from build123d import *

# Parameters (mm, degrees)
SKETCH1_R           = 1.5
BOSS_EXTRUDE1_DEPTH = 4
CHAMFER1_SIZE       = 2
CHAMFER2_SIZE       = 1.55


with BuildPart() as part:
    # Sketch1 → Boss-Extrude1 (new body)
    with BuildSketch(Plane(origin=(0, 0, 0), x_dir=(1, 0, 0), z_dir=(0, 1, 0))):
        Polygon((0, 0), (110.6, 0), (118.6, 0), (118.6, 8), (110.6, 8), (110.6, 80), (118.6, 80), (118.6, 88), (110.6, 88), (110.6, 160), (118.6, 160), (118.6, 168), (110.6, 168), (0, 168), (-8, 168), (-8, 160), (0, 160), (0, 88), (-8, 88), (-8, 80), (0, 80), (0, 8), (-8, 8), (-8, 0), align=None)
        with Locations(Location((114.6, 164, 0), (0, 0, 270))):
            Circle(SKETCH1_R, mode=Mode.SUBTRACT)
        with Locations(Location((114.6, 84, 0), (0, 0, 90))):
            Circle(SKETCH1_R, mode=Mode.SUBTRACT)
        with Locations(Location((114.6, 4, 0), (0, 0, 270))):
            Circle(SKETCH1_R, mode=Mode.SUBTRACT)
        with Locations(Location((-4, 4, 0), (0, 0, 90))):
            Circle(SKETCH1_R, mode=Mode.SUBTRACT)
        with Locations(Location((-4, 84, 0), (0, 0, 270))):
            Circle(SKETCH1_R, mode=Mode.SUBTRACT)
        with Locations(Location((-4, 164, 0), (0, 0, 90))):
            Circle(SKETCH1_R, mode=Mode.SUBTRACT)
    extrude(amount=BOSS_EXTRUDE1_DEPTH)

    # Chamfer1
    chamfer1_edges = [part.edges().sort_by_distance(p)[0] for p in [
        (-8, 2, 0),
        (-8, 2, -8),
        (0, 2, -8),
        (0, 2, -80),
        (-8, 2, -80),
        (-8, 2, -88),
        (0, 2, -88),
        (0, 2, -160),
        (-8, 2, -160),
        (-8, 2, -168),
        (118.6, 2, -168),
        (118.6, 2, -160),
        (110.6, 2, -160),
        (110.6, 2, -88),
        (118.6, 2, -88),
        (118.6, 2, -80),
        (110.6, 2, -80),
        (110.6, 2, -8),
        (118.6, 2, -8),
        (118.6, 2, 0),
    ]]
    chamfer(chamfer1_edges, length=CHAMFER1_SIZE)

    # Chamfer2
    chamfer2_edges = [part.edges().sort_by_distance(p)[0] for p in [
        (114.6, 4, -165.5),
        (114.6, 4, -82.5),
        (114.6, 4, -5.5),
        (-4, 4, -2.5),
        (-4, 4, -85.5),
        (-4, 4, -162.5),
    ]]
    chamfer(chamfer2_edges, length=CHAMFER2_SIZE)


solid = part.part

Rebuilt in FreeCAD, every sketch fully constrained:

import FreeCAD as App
import Part
import Sketcher


def edges_at(feature, points):
    """Names of the edges that pass closest to the given points."""
    edges = feature.Shape.Edges
    near = lambda p: min(range(len(edges)), key=lambda i: edges[i].distToShape(Part.Vertex(*p))[0])
    return sorted({f"Edge{near(p) + 1}" for p in points})

doc = App.newDocument("Part")
params = doc.addObject("Spreadsheet::Sheet", "Params")
for row, (alias, value) in enumerate([
    ("sketch1_diameter", "3 mm"),
    ("sketch1_width", "8 mm"),
    ("sketch1_height", "72 mm"),
    ("sketch1_width2", "126.6 mm"),
    ("pad1_length", "4 mm"),
    ("chamfer_size", "2 mm"),
    ("chamfer2_size", "1.55 mm"),
], start=1):
    params.set(f"A{row}", alias)
    params.set(f"B{row}", "=" + value)
    params.setAlias(f"B{row}", alias)

body = doc.addObject("PartDesign::Body", "Body")

sketch1 = body.newObject("Sketcher::SketchObject", "Sketch")
sketch1.AttachmentSupport = (doc.getObject("XZ_Plane"), [""])
sketch1.MapMode = "FlatFace"
sketch1.addGeometry([
    Part.LineSegment(App.Vector(118.6, 0, 0), App.Vector(118.6, -8, 0)),
    Part.LineSegment(App.Vector(118.6, -8, 0), App.Vector(110.6, -8, 0)),
    Part.LineSegment(App.Vector(110.6, -8, 0), App.Vector(110.6, -80, 0)),
    Part.LineSegment(App.Vector(110.6, -80, 0), App.Vector(118.6, -80, 0)),
    Part.LineSegment(App.Vector(118.6, -80, 0), App.Vector(118.6, -88, 0)),
    Part.LineSegment(App.Vector(118.6, -88, 0), App.Vector(110.6, -88, 0)),
    Part.LineSegment(App.Vector(110.6, -88, 0), App.Vector(110.6, -160, 0)),
    Part.LineSegment(App.Vector(110.6, -160, 0), App.Vector(118.6, -160, 0)),
    Part.LineSegment(App.Vector(118.6, -160, 0), App.Vector(118.6, -168, 0)),
    Part.LineSegment(App.Vector(118.6, -168, 0), App.Vector(-8, -168, 0)),
    Part.LineSegment(App.Vector(-8, -168, 0), App.Vector(-8, -160, 0)),
    Part.LineSegment(App.Vector(-8, -160, 0), App.Vector(0, -160, 0)),
    Part.LineSegment(App.Vector(0, -160, 0), App.Vector(0, -88, 0)),
    Part.LineSegment(App.Vector(0, -88, 0), App.Vector(-8, -88, 0)),
    Part.LineSegment(App.Vector(-8, -88, 0), App.Vector(-8, -80, 0)),
    Part.LineSegment(App.Vector(-8, -80, 0), App.Vector(0, -80, 0)),
    Part.LineSegment(App.Vector(0, -80, 0), App.Vector(0, -8, 0)),
    Part.LineSegment(App.Vector(0, -8, 0), App.Vector(-8, -8, 0)),
    Part.LineSegment(App.Vector(-8, -8, 0), App.Vector(-8, 0, 0)),
    Part.LineSegment(App.Vector(-8, 0, 0), App.Vector(118.6, 0, 0)),
    Part.Circle(App.Vector(-4, -4, 0), App.Vector(0, 0, 1), 1.5),
    Part.Circle(App.Vector(114.6, -4, 0), App.Vector(0, 0, 1), 1.5),
    Part.Circle(App.Vector(-4, -84, 0), App.Vector(0, 0, 1), 1.5),
    Part.Circle(App.Vector(-4, -164, 0), App.Vector(0, 0, 1), 1.5),
    Part.Circle(App.Vector(114.6, -84, 0), App.Vector(0, 0, 1), 1.5),
    Part.Circle(App.Vector(114.6, -164, 0), App.Vector(0, 0, 1), 1.5),
], False)
sketch1.addConstraint([
    Sketcher.Constraint("Coincident", 0, 2, 1, 1),
    Sketcher.Constraint("Coincident", 1, 2, 2, 1),
    Sketcher.Constraint("Coincident", 2, 2, 3, 1),
    Sketcher.Constraint("Coincident", 3, 2, 4, 1),
    Sketcher.Constraint("Coincident", 4, 2, 5, 1),
    Sketcher.Constraint("Coincident", 5, 2, 6, 1),
    Sketcher.Constraint("Coincident", 6, 2, 7, 1),
    Sketcher.Constraint("Coincident", 7, 2, 8, 1),
    Sketcher.Constraint("Coincident", 8, 2, 9, 1),
    Sketcher.Constraint("Coincident", 9, 2, 10, 1),
    Sketcher.Constraint("Coincident", 10, 2, 11, 1),
    Sketcher.Constraint("Coincident", 11, 2, 12, 1),
    Sketcher.Constraint("Coincident", 12, 2, 13, 1),
    Sketcher.Constraint("Coincident", 13, 2, 14, 1),
    Sketcher.Constraint("Coincident", 14, 2, 15, 1),
    Sketcher.Constraint("Coincident", 15, 2, 16, 1),
    Sketcher.Constraint("Coincident", 16, 2, 17, 1),
    Sketcher.Constraint("Coincident", 17, 2, 18, 1),
    Sketcher.Constraint("Coincident", 18, 2, 19, 1),
    Sketcher.Constraint("Coincident", 19, 2, 0, 1),
    Sketcher.Constraint("Vertical", 0),
    Sketcher.Constraint("Horizontal", 1),
    Sketcher.Constraint("Vertical", 2),
    Sketcher.Constraint("Horizontal", 3),
    Sketcher.Constraint("Vertical", 4),
    Sketcher.Constraint("Horizontal", 5),
    Sketcher.Constraint("Vertical", 6),
    Sketcher.Constraint("Horizontal", 7),
    Sketcher.Constraint("Vertical", 8),
    Sketcher.Constraint("Horizontal", 9),
    Sketcher.Constraint("Vertical", 10),
    Sketcher.Constraint("Horizontal", 11),
    Sketcher.Constraint("Vertical", 12),
    Sketcher.Constraint("Horizontal", 13),
    Sketcher.Constraint("Vertical", 14),
    Sketcher.Constraint("Horizontal", 15),
    Sketcher.Constraint("Vertical", 16),
    Sketcher.Constraint("Horizontal", 17),
    Sketcher.Constraint("Vertical", 18),
    Sketcher.Constraint("Horizontal", 19),
    Sketcher.Constraint("Equal", 20, 21),
    Sketcher.Constraint("Equal", 21, 22),
    Sketcher.Constraint("Equal", 22, 23),
    Sketcher.Constraint("Equal", 23, 24),
    Sketcher.Constraint("Equal", 24, 25),
    Sketcher.Constraint("PointOnObject", 11, 2, -2),
    Sketcher.Constraint("PointOnObject", 15, 2, -2),
    Sketcher.Constraint("PointOnObject", 18, 2, -1),
    Sketcher.Constraint("Horizontal", 20, 3, 21, 3),
    Sketcher.Constraint("Horizontal", 22, 3, 24, 3),
    Sketcher.Constraint("Horizontal", 23, 3, 25, 3),
    Sketcher.Constraint("Horizontal", 7, 2, 10, 2),
    Sketcher.Constraint("Horizontal", 5, 2, 12, 2),
    Sketcher.Constraint("Horizontal", 3, 2, 14, 2),
    Sketcher.Constraint("Horizontal", 1, 2, 16, 2),
    Sketcher.Constraint("Vertical", 20, 3, 22, 3),
    Sketcher.Constraint("Vertical", 22, 3, 23, 3),
    Sketcher.Constraint("Vertical", 21, 3, 24, 3),
    Sketcher.Constraint("Vertical", 24, 3, 25, 3),
    Sketcher.Constraint("Vertical", 0, 2, 3, 2),
    Sketcher.Constraint("Vertical", 2, 2, 5, 2),
    Sketcher.Constraint("Vertical", 4, 2, 7, 2),
    Sketcher.Constraint("Vertical", 10, 2, 13, 2),
    Sketcher.Constraint("Vertical", 14, 2, 17, 2),
    Sketcher.Constraint("Equal", 7, 11),
    Sketcher.Constraint("Equal", 17, 0),
    Sketcher.Constraint("Equal", 0, 4),
    Sketcher.Constraint("Equal", 2, 6),
    Sketcher.Constraint("Equal", 4, 8),
    Sketcher.Constraint("Diameter", 20, 3.0),
    Sketcher.Constraint("DistanceX", 1, 2, 1, 1, 8.0),
    Sketcher.Constraint("DistanceY", 2, 2, 2, 1, 72.0),
    Sketcher.Constraint("DistanceX", 9, 2, 9, 1, 126.6),
    Sketcher.Constraint("DistanceX", 20, 3, -1, 1, 4.0),
    Sketcher.Constraint("DistanceY", 20, 3, -1, 1, 4.0),
    Sketcher.Constraint("DistanceY", 22, 3, -1, 1, 84.0),
    Sketcher.Constraint("DistanceY", 23, 3, -1, 1, 164.0),
    Sketcher.Constraint("DistanceX", 21, 3, 0, 2, 4.0),
])
sketch1.setExpression("Constraints[69]", "Params.sketch1_diameter")
sketch1.setExpression("Constraints[70]", "Params.sketch1_width")
sketch1.setExpression("Constraints[71]", "Params.sketch1_height")
sketch1.setExpression("Constraints[72]", "Params.sketch1_width2")
pad1 = body.newObject("PartDesign::Pad", "Pad")
pad1.Profile = sketch1
pad1.setExpression("Length", "Params.pad1_length")
pad1.Reversed = True
doc.recompute()

chamfer = body.newObject("PartDesign::Chamfer", "Chamfer")
chamfer.Base = (pad1, edges_at(pad1, [
    (-8, 2, 0),
    (-8, 2, -8),
    (0, 2, -8),
    (0, 2, -80),
    (-8, 2, -80),
    (-8, 2, -88),
    (0, 2, -88),
    (0, 2, -160),
    (-8, 2, -160),
    (-8, 2, -168),
    (118.6, 2, -168),
    (118.6, 2, -160),
    (110.6, 2, -160),
    (110.6, 2, -88),
    (118.6, 2, -88),
    (118.6, 2, -80),
    (110.6, 2, -80),
    (110.6, 2, -8),
    (118.6, 2, -8),
    (118.6, 2, 0),
]))
chamfer.setExpression("Size", "Params.chamfer_size")
doc.recompute()

chamfer2 = body.newObject("PartDesign::Chamfer", "Chamfer001")
chamfer2.Base = (chamfer, edges_at(chamfer, [
    (114.6, 4, -165.5),
    (114.6, 4, -82.5),
    (114.6, 4, -5.5),
    (-4, 4, -2.5),
    (-4, 4, -85.5),
    (-4, 4, -162.5),
]))
chamfer2.setExpression("Size", "Params.chamfer2_size")

doc.recompute()
